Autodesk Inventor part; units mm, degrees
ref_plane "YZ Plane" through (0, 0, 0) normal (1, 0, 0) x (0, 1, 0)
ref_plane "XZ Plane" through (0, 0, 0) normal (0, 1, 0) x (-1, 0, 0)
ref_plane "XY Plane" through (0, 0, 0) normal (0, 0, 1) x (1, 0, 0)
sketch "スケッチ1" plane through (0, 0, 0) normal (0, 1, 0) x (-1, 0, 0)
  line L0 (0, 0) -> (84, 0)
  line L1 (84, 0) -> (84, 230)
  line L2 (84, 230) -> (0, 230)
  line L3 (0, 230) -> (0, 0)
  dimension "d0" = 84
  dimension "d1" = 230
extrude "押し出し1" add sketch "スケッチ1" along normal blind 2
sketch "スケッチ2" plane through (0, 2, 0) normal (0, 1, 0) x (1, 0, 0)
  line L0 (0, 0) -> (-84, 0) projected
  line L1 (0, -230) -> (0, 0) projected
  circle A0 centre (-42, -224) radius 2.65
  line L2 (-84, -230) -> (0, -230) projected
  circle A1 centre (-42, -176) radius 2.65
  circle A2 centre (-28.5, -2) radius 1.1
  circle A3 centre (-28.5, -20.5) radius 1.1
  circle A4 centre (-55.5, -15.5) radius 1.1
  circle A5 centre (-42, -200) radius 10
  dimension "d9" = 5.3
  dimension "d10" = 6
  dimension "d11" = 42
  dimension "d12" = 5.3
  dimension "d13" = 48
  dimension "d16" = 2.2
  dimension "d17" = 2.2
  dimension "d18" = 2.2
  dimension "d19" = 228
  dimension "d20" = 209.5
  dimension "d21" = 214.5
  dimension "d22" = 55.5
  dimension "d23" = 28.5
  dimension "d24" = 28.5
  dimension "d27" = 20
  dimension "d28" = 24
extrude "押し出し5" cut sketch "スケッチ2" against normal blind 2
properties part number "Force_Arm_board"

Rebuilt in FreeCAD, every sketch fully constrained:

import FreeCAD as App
import Part
import Sketcher
from FreeCAD import Vector

doc = App.newDocument("Part")
params = doc.addObject("Spreadsheet::Sheet", "Params")
for row, (alias, value) in enumerate([
    ("sketch1_width", "84 mm"),
    ("sketch1_height", "230 mm"),
    ("pad1_length", "2 mm"),
    ("sketch2_diameter", "20 mm"),
    ("sketch2_diameter2", "5.3 mm"),
    ("sketch2_diameter3", "2.2 mm"),
    ("pocket1_length", "2 mm"),
], start=1):
    params.set(f"A{row}", alias)
    params.set(f"B{row}", "=" + value)
    params.setAlias(f"B{row}", alias)

body = doc.addObject("PartDesign::Body", "Body")

sketch1 = body.newObject("Sketcher::SketchObject", "Sketch")
sketch1.AttachmentSupport = (doc.getObject("XZ_Plane"), [""])
sketch1.MapMode = "FlatFace"
sketch1.addGeometry(Part.LineSegment(Vector(0, 230, 0), Vector(0, 0, 0)), False)
sketch1.addGeometry(Part.LineSegment(Vector(0, 0, 0), Vector(-84, 0, 0)), False)
sketch1.addGeometry(Part.LineSegment(Vector(-84, 0, 0), Vector(-84, 230, 0)), False)
sketch1.addGeometry(Part.LineSegment(Vector(-84, 230, 0), Vector(0, 230, 0)), False)
sketch1.addConstraint(Sketcher.Constraint("Coincident", 0, 2, 1, 1))
sketch1.addConstraint(Sketcher.Constraint("Coincident", 1, 2, 2, 1))
sketch1.addConstraint(Sketcher.Constraint("Coincident", 2, 2, 3, 1))
sketch1.addConstraint(Sketcher.Constraint("Coincident", 3, 2, 0, 1))
sketch1.addConstraint(Sketcher.Constraint("Vertical", 0))
sketch1.addConstraint(Sketcher.Constraint("Horizontal", 1))
sketch1.addConstraint(Sketcher.Constraint("Vertical", 2))
sketch1.addConstraint(Sketcher.Constraint("Horizontal", 3))
sketch1.addConstraint(Sketcher.Constraint("Coincident", 0, 2, -1, 1))
sketch1.addConstraint(Sketcher.Constraint("DistanceX", 1, 2, 1, 1, 84.0))
sketch1.addConstraint(Sketcher.Constraint("DistanceY", 0, 2, 0, 1, 230.0))
sketch1.setExpression("Constraints[9]", "Params.sketch1_width")
sketch1.setExpression("Constraints[10]", "Params.sketch1_height")
pad1 = body.newObject("PartDesign::Pad", "Pad")
pad1.Profile = sketch1
pad1.setExpression("Length", "Params.pad1_length")
pad1.Reversed = True

sketch2 = body.newObject("Sketcher::SketchObject", "Sketch001")
sketch2.AttachmentSupport = (doc.getObject("XZ_Plane"), [""])
sketch2.MapMode = "FlatFace"
sketch2.AttachmentOffset = App.Placement(Vector(0, 0, -2), App.Rotation())
sketch2.addGeometry(Part.Circle(Vector(-42, 224, 0), Vector(0, 0, 1), 2.6), False)
sketch2.addGeometry(Part.Circle(Vector(-42, 176, 0), Vector(0, 0, 1), 2.6), False)
sketch2.addGeometry(Part.Circle(Vector(-28.5, 2, 0), Vector(0, 0, 1), 1.1), False)
sketch2.addGeometry(Part.Circle(Vector(-28.5, 20.5, 0), Vector(0, 0, 1), 1.1), False)
sketch2.addGeometry(Part.Circle(Vector(-55.5, 15.5, 0), Vector(0, 0, 1), 1.1), False)
sketch2.addGeometry(Part.Circle(Vector(-42, 200, 0), Vector(0, 0, 1), 10), False)
sketch2.addConstraint(Sketcher.Constraint("Equal", 0, 1))
sketch2.addConstraint(Sketcher.Constraint("Equal", 2, 3))
sketch2.addConstraint(Sketcher.Constraint("Equal", 3, 4))
sketch2.addConstraint(Sketcher.Constraint("Vertical", 0, 3, 1, 3))
sketch2.addConstraint(Sketcher.Constraint("Vertical", 2, 3, 3, 3))
sketch2.addConstraint(Sketcher.Constraint("Vertical", 1, 3, 5, 3))
sketch2.addConstraint(Sketcher.Constraint("Diameter", 5, 20.0))
sketch2.addConstraint(Sketcher.Constraint("Diameter", 0, 5.3))
sketch2.addConstraint(Sketcher.Constraint("Diameter", 2, 2.2))
sketch2.addConstraint(Sketcher.Constraint("DistanceX", 0, 3, -1, 1, 42.0))
sketch2.addConstraint(Sketcher.Constraint("DistanceY", 1, 3, 0, 3, 48.0))
sketch2.addConstraint(Sketcher.Constraint("DistanceY", 5, 3, 0, 3, 24.0))
sketch2.addConstraint(Sketcher.Constraint("DistanceX", 2, 3, -1, 1, 28.5))
sketch2.addConstraint(Sketcher.Constraint("DistanceX", 4, 3, -1, 1, 55.5))
sketch2.addConstraint(Sketcher.Constraint("DistanceY", -1, 1, 0, 3, 224.0))
sketch2.addConstraint(Sketcher.Constraint("DistanceY", -1, 1, 2, 3, 2.0))
sketch2.addConstraint(Sketcher.Constraint("DistanceY", 4, 3, 3, 3, 5.0))
sketch2.addConstraint(Sketcher.Constraint("DistanceY", -1, 1, 3, 3, 20.5))
sketch2.setExpression("Constraints[6]", "Params.sketch2_diameter")
sketch2.setExpression("Constraints[7]", "Params.sketch2_diameter2")
sketch2.setExpression("Constraints[8]", "Params.sketch2_diameter3")
pocket1 = body.newObject("PartDesign::Pocket", "Pocket")
pocket1.Profile = sketch2
pocket1.setExpression("Length", "Params.pocket1_length")
pocket1.Reversed = True

doc.recompute()
